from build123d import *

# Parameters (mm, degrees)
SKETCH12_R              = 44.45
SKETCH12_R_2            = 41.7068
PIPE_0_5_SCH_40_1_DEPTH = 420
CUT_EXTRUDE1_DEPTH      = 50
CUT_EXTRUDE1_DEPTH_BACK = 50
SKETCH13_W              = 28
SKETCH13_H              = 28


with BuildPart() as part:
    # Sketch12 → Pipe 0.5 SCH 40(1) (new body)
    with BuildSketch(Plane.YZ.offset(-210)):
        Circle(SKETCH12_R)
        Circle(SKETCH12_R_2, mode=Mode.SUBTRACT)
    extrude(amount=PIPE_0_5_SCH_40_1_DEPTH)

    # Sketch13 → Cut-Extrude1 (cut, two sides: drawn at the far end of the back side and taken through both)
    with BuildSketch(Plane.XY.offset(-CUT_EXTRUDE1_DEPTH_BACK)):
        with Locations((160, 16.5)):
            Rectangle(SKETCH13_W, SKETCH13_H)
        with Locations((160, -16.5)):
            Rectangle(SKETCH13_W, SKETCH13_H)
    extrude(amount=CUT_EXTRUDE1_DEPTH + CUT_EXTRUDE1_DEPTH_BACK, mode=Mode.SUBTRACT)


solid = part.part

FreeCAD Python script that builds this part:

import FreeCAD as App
import Part
import Sketcher
from FreeCAD import Vector


def add_polygon(sketch, points):
    """Adds a closed chain of lines whose ends are joined by coincident constraints."""
    first, n = sketch.GeometryCount, len(points)
    for a, b in zip(points, points[1:] + points[:1]):
        sketch.addGeometry(Part.LineSegment(App.Vector(*a, 0), App.Vector(*b, 0)), False)
    for i in range(n):
        sketch.addConstraint(Sketcher.Constraint("Coincident", first + i, 2, first + (i + 1) % n, 1))

doc = App.newDocument("Part")
body = doc.addObject("PartDesign::Body", "Body")

sketch1 = doc.addObject("Sketcher::SketchObject", "Sketch")
body.addObject(sketch1)
sketch1.AttachmentSupport = (doc.YZ_Plane, [""])
sketch1.MapMode = "FlatFace"
sketch1.AttachmentOffset = App.Placement(Vector(0, 0, -210), App.Rotation())
sketch1.addGeometry(Part.Circle(Vector(0, 0, 0), Vector(0, 0, 1), 44.45), False)
sketch1.addGeometry(Part.Circle(Vector(0, 0, 0), Vector(0, 0, 1), 41.7068), False)
sketch1.addConstraint(Sketcher.Constraint("Coincident", 0, 3, -1, 1))
sketch1.addConstraint(Sketcher.Constraint("Coincident", 1, 3, -1, 1))
sketch1.addConstraint(Sketcher.Constraint("Diameter", 0, 88.9))
sketch1.addConstraint(Sketcher.Constraint("Diameter", 1, 83.4136))
pad1 = doc.addObject("PartDesign::Pad", "Pad")
body.addObject(pad1)
pad1.Profile = sketch1
pad1.Length = 420

sketch2 = doc.addObject("Sketcher::SketchObject", "Sketch001")
body.addObject(sketch2)
sketch2.AttachmentSupport = (doc.XY_Plane, [""])
sketch2.MapMode = "FlatFace"
add_polygon(sketch2, [(146, 30.5), (146, 2.5), (174, 2.5), (174, 30.5)])
add_polygon(sketch2, [(146, -2.5), (146, -30.5), (174, -30.5), (174, -2.5)])
sketch2.addConstraint(Sketcher.Constraint("Vertical", 0))
sketch2.addConstraint(Sketcher.Constraint("Horizontal", 1))
sketch2.addConstraint(Sketcher.Constraint("Vertical", 2))
sketch2.addConstraint(Sketcher.Constraint("Horizontal", 3))
sketch2.addConstraint(Sketcher.Constraint("Vertical", 4))
sketch2.addConstraint(Sketcher.Constraint("Horizontal", 5))
sketch2.addConstraint(Sketcher.Constraint("Vertical", 6))
sketch2.addConstraint(Sketcher.Constraint("Horizontal", 7))
sketch2.addConstraint(Sketcher.Constraint("Symmetric", 3, 2, 4, 2, -1))
sketch2.addConstraint(Sketcher.Constraint("Symmetric", 1, 2, 6, 2, -1))
sketch2.addConstraint(Sketcher.Constraint("Equal", 7, 0))
sketch2.addConstraint(Sketcher.Constraint("DistanceX", 1, 1, 1, 2, 28.0))
sketch2.addConstraint(Sketcher.Constraint("DistanceX", -1, 1, 0, 2, 146.0))
sketch2.addConstraint(Sketcher.Constraint("DistanceY", 4, 2, 0, 2, 33.0))
pocket1 = doc.addObject("PartDesign::Pocket", "Pocket")
body.addObject(pocket1)
pocket1.Profile = sketch2
pocket1.Type = "ThroughAll"
pocket1.Midplane = True

doc.recompute()
